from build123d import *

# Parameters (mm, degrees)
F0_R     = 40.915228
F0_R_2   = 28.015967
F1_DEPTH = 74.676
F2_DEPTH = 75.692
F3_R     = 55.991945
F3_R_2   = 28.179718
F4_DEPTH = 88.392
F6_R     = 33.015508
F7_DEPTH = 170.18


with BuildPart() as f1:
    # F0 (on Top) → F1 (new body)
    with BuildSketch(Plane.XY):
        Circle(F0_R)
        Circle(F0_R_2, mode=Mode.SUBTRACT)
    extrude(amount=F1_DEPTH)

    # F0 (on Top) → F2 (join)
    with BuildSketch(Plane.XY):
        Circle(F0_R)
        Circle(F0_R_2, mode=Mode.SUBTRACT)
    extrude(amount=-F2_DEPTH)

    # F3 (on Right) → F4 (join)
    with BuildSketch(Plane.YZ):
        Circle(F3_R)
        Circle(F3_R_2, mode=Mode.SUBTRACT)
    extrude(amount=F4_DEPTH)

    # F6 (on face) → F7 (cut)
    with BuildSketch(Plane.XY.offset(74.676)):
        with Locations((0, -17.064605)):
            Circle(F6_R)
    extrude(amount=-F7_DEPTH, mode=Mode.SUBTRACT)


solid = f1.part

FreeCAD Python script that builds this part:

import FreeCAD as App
import Part
import Sketcher
Q = App.Units.Quantity

doc = App.newDocument("Part")
params = doc.addObject("Spreadsheet::Sheet", "Params")
for row, (alias, value) in enumerate([
    ("pad1_length", "2.94 in"),
    ("pad2_length", "2.98 in"),
    ("pad3_length", "3.48 in"),
    ("pocket1_length", "6.7 in"),
], start=1):
    params.set(f"A{row}", alias)
    params.set(f"B{row}", "=" + value)
    params.setAlias(f"B{row}", alias)

body = doc.addObject("PartDesign::Body", "Body")

# Sketch on XY plane
sketch1 = body.newObject("Sketcher::SketchObject", "Sketch")
sketch1.AttachmentSupport = (doc.getObject("XY_Plane"), [""])
sketch1.MapMode = "FlatFace"
sketch1.addGeometry([
    Part.Circle(App.Vector(0, 0, 0), App.Vector(0, 0, 1), 41),
    Part.Circle(App.Vector(0, 0, 0), App.Vector(0, 0, 1), 28),
], False)
sketch1.addConstraint([
    Sketcher.Constraint("Coincident", 0, 3, -1, 1),
    Sketcher.Constraint("Coincident", 1, 3, -1, 1),
    Sketcher.Constraint("Diameter", 0, Q("81.830456 mm")),
    Sketcher.Constraint("Diameter", 1, Q("56.031934 mm")),
])
pad1 = body.newObject("PartDesign::Pad", "Pad")
pad1.Profile = sketch1
pad1.setExpression("Length", "Params.pad1_length")

# Sketch on XY plane
sketch2 = body.newObject("Sketcher::SketchObject", "Sketch001")
sketch2.AttachmentSupport = (doc.getObject("XY_Plane"), [""])
sketch2.MapMode = "FlatFace"
sketch2.addGeometry([
    Part.Circle(App.Vector(0, 0, 0), App.Vector(0, 0, 1), 41),
    Part.Circle(App.Vector(0, 0, 0), App.Vector(0, 0, 1), 28),
], False)
sketch2.addConstraint([
    Sketcher.Constraint("Coincident", 0, 3, -1, 1),
    Sketcher.Constraint("Coincident", 1, 3, -1, 1),
    Sketcher.Constraint("Diameter", 0, Q("81.830456 mm")),
    Sketcher.Constraint("Diameter", 1, Q("56.031934 mm")),
])
pad2 = body.newObject("PartDesign::Pad", "Pad001")
pad2.Profile = sketch2
pad2.setExpression("Length", "Params.pad2_length")
pad2.Reversed = True

# Sketch on YZ plane
sketch3 = body.newObject("Sketcher::SketchObject", "Sketch002")
sketch3.AttachmentSupport = (doc.getObject("YZ_Plane"), [""])
sketch3.MapMode = "FlatFace"
sketch3.addGeometry([
    Part.Circle(App.Vector(0, 0, 0), App.Vector(0, 0, 1), 56),
    Part.Circle(App.Vector(0, 0, 0), App.Vector(0, 0, 1), 28),
], False)
sketch3.addConstraint([
    Sketcher.Constraint("Coincident", 0, 3, -1, 1),
    Sketcher.Constraint("Coincident", 1, 3, -1, 1),
    Sketcher.Constraint("Diameter", 0, Q("111.98389 mm")),
    Sketcher.Constraint("Diameter", 1, Q("56.359436 mm")),
])
pad3 = body.newObject("PartDesign::Pad", "Pad002")
pad3.Profile = sketch3
pad3.setExpression("Length", "Params.pad3_length")

# Sketch on XY plane
sketch4 = body.newObject("Sketcher::SketchObject", "Sketch003")
sketch4.AttachmentSupport = (doc.getObject("XY_Plane"), [""])
sketch4.MapMode = "FlatFace"
sketch4.AttachmentOffset = App.Placement(App.Vector(0, 0, 2.94 * 25.4), App.Rotation())
sketch4.addGeometry(Part.Circle(App.Vector(0, -17, 0), App.Vector(0, 0, 1), 33), False)
sketch4.addConstraint([
    Sketcher.Constraint("PointOnObject", 0, 3, -2),
    Sketcher.Constraint("Diameter", 0, Q("66.031016 mm")),
    Sketcher.Constraint("DistanceY", 0, 3, -1, 1, Q("17.064605 mm")),
])
pocket1 = body.newObject("PartDesign::Pocket", "Pocket")
pocket1.Profile = sketch4
pocket1.setExpression("Length", "Params.pocket1_length")

doc.recompute()
